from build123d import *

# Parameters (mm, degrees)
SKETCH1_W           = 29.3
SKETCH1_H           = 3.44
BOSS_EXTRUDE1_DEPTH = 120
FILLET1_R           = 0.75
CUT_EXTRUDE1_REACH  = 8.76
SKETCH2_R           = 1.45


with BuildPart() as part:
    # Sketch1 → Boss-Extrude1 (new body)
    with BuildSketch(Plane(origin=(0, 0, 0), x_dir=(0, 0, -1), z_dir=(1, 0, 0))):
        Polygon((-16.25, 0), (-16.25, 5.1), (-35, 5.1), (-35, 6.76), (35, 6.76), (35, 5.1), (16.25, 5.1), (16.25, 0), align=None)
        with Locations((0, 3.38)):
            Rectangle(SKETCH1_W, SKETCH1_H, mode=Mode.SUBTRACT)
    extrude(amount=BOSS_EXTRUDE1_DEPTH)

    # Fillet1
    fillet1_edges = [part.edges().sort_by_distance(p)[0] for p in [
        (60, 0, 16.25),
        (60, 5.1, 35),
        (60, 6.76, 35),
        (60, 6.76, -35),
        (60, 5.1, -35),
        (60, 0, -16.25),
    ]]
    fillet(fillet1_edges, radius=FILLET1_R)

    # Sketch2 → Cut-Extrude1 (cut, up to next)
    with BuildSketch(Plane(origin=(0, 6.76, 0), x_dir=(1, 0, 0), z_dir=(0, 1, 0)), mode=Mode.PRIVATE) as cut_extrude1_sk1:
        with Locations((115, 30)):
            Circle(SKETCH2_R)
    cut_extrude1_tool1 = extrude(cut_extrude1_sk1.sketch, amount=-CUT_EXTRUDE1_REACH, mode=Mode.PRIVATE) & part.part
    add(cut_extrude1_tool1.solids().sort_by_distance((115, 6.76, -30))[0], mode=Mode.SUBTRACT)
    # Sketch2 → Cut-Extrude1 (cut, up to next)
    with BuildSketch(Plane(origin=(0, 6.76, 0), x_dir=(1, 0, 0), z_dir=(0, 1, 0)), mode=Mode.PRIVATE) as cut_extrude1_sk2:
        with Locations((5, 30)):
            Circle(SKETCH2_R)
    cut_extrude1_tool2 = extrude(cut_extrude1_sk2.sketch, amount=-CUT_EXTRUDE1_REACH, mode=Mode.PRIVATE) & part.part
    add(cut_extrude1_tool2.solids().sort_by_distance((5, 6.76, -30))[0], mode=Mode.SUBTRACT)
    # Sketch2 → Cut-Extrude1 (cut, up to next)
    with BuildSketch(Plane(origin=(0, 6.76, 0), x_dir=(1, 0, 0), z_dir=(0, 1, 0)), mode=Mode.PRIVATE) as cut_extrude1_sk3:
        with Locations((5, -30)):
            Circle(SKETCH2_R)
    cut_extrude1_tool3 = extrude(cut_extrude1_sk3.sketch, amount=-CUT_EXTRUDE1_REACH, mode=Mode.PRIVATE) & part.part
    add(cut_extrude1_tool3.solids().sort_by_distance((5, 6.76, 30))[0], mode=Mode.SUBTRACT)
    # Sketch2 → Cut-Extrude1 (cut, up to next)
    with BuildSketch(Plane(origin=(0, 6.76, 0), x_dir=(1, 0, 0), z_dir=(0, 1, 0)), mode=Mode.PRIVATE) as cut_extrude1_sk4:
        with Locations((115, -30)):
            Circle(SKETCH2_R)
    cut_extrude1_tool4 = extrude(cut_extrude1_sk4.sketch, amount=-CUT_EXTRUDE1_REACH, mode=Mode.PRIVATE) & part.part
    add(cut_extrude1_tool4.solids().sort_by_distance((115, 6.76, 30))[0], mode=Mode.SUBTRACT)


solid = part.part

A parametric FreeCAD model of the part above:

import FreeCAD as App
import Part
import Sketcher
from FreeCAD import Vector


def edges_at(feature, points):
    """Names of the edges that pass closest to the given points."""
    edges = feature.Shape.Edges
    near = lambda p: min(range(len(edges)), key=lambda i: edges[i].distToShape(Part.Vertex(*p))[0])
    return sorted({f"Edge{near(p) + 1}" for p in points})

doc = App.newDocument("Part")
body = doc.addObject("PartDesign::Body", "Body")

# Sketch on YZ plane
sketch1 = doc.addObject("Sketcher::SketchObject", "Sketch")
body.addObject(sketch1)
sketch1.AttachmentSupport = (doc.YZ_Plane, [""])
sketch1.MapMode = "FlatFace"
sketch1.addGeometry(Part.LineSegment(Vector(5.1, 16.25, 0), Vector(0, 16.25, 0)), False)
sketch1.addGeometry(Part.LineSegment(Vector(0, 16.25, 0), Vector(0, -16.25, 0)), False)
sketch1.addGeometry(Part.LineSegment(Vector(0, -16.25, 0), Vector(5.1, -16.25, 0)), False)
sketch1.addGeometry(Part.LineSegment(Vector(5.1, -16.25, 0), Vector(5.1, -35, 0)), False)
sketch1.addGeometry(Part.LineSegment(Vector(5.1, -35, 0), Vector(6.76, -35, 0)), False)
sketch1.addGeometry(Part.LineSegment(Vector(6.76, -35, 0), Vector(6.76, 35, 0)), False)
sketch1.addGeometry(Part.LineSegment(Vector(6.76, 35, 0), Vector(5.1, 35, 0)), False)
sketch1.addGeometry(Part.LineSegment(Vector(5.1, 35, 0), Vector(5.1, 16.25, 0)), False)
sketch1.addGeometry(Part.LineSegment(Vector(1.66, 14.65, 0), Vector(5.1, 14.65, 0)), False)
sketch1.addGeometry(Part.LineSegment(Vector(5.1, 14.65, 0), Vector(5.1, -14.65, 0)), False)
sketch1.addGeometry(Part.LineSegment(Vector(5.1, -14.65, 0), Vector(1.66, -14.65, 0)), False)
sketch1.addGeometry(Part.LineSegment(Vector(1.66, -14.65, 0), Vector(1.66, 14.65, 0)), False)
sketch1.addConstraint(Sketcher.Constraint("Coincident", 0, 2, 1, 1))
sketch1.addConstraint(Sketcher.Constraint("Coincident", 1, 2, 2, 1))
sketch1.addConstraint(Sketcher.Constraint("Coincident", 2, 2, 3, 1))
sketch1.addConstraint(Sketcher.Constraint("Coincident", 3, 2, 4, 1))
sketch1.addConstraint(Sketcher.Constraint("Coincident", 4, 2, 5, 1))
sketch1.addConstraint(Sketcher.Constraint("Coincident", 5, 2, 6, 1))
sketch1.addConstraint(Sketcher.Constraint("Coincident", 6, 2, 7, 1))
sketch1.addConstraint(Sketcher.Constraint("Coincident", 7, 2, 0, 1))
sketch1.addConstraint(Sketcher.Constraint("Coincident", 8, 2, 9, 1))
sketch1.addConstraint(Sketcher.Constraint("Coincident", 9, 2, 10, 1))
sketch1.addConstraint(Sketcher.Constraint("Coincident", 10, 2, 11, 1))
sketch1.addConstraint(Sketcher.Constraint("Coincident", 11, 2, 8, 1))
sketch1.addConstraint(Sketcher.Constraint("Horizontal", 0))
sketch1.addConstraint(Sketcher.Constraint("Vertical", 1))
sketch1.addConstraint(Sketcher.Constraint("Horizontal", 2))
sketch1.addConstraint(Sketcher.Constraint("Vertical", 3))
sketch1.addConstraint(Sketcher.Constraint("Horizontal", 4))
sketch1.addConstraint(Sketcher.Constraint("Vertical", 5))
sketch1.addConstraint(Sketcher.Constraint("Horizontal", 6))
sketch1.addConstraint(Sketcher.Constraint("Vertical", 7))
sketch1.addConstraint(Sketcher.Constraint("Horizontal", 8))
sketch1.addConstraint(Sketcher.Constraint("Vertical", 9))
sketch1.addConstraint(Sketcher.Constraint("Horizontal", 10))
sketch1.addConstraint(Sketcher.Constraint("Vertical", 11))
sketch1.addConstraint(Sketcher.Constraint("Symmetric", 0, 2, 1, 2, -1, 1))
sketch1.addConstraint(Sketcher.Constraint("Symmetric", 3, 2, 6, 2, -1))
sketch1.addConstraint(Sketcher.Constraint("Vertical", 7, 2, 8, 2))
sketch1.addConstraint(Sketcher.Constraint("DistanceY", 5, 1, 5, 2, 70.0))
sketch1.addConstraint(Sketcher.Constraint("DistanceX", 0, 2, 0, 1, 5.1))
sketch1.addConstraint(Sketcher.Constraint("DistanceY", 1, 2, 1, 1, 32.5))
sketch1.addConstraint(Sketcher.Constraint("DistanceY", 9, 2, 9, 1, 29.3))
sketch1.addConstraint(Sketcher.Constraint("DistanceX", 4, 1, 4, 2, 1.66))
sketch1.addConstraint(Sketcher.Constraint("DistanceX", 8, 1, 8, 2, 3.44))
sketch1.addConstraint(Sketcher.Constraint("DistanceY", 8, 2, 7, 2, 1.6))
pad1 = doc.addObject("PartDesign::Pad", "Pad")
body.addObject(pad1)
pad1.Profile = sketch1
pad1.Length = 120
doc.recompute()

fillet = doc.addObject("PartDesign::Fillet", "Fillet")
body.addObject(fillet)
fillet.Base = (pad1, edges_at(pad1, [
    (60, 0, 16.25),
    (60, 5.1, 35),
    (60, 6.76, 35),
    (60, 6.76, -35),
    (60, 5.1, -35),
    (60, 0, -16.25),
]))
fillet.Radius = 0.75

# Sketch on XZ plane
sketch2 = doc.addObject("Sketcher::SketchObject", "Sketch001")
body.addObject(sketch2)
sketch2.AttachmentSupport = (doc.XZ_Plane, [""])
sketch2.MapMode = "FlatFace"
sketch2.AttachmentOffset = App.Placement(Vector(0, 0, -6.76), App.Rotation())
sketch2.addGeometry(Part.Circle(Vector(115, -30, 0), Vector(0, 0, 1), 1.45), False)
sketch2.addConstraint(Sketcher.Constraint("Diameter", 0, 2.9))
sketch2.addConstraint(Sketcher.Constraint("DistanceX", -1, 1, 0, 3, 115.0))
sketch2.addConstraint(Sketcher.Constraint("DistanceY", 0, 3, -1, 1, 30.0))
pocket1 = doc.addObject("PartDesign::Pocket", "Pocket")
body.addObject(pocket1)
pocket1.Profile = sketch2
pocket1.Type = "UpToFirst"
pocket1.Reversed = True

# Sketch on XZ plane
sketch3 = doc.addObject("Sketcher::SketchObject", "Sketch002")
body.addObject(sketch3)
sketch3.AttachmentSupport = (doc.XZ_Plane, [""])
sketch3.MapMode = "FlatFace"
sketch3.AttachmentOffset = App.Placement(Vector(0, 0, -6.76), App.Rotation())
sketch3.addGeometry(Part.Circle(Vector(5, -30, 0), Vector(0, 0, 1), 1.45), False)
sketch3.addConstraint(Sketcher.Constraint("Diameter", 0, 2.9))
sketch3.addConstraint(Sketcher.Constraint("DistanceX", -1, 1, 0, 3, 5.0))
sketch3.addConstraint(Sketcher.Constraint("DistanceY", 0, 3, -1, 1, 30.0))
pocket2 = doc.addObject("PartDesign::Pocket", "Pocket001")
body.addObject(pocket2)
pocket2.Profile = sketch3
pocket2.Type = "UpToFirst"
pocket2.Reversed = True

# Sketch on XZ plane
sketch4 = doc.addObject("Sketcher::SketchObject", "Sketch003")
body.addObject(sketch4)
sketch4.AttachmentSupport = (doc.XZ_Plane, [""])
sketch4.MapMode = "FlatFace"
sketch4.AttachmentOffset = App.Placement(Vector(0, 0, -6.76), App.Rotation())
sketch4.addGeometry(Part.Circle(Vector(5, 30, 0), Vector(0, 0, 1), 1.45), False)
sketch4.addConstraint(Sketcher.Constraint("Diameter", 0, 2.9))
sketch4.addConstraint(Sketcher.Constraint("DistanceX", -1, 1, 0, 3, 5.0))
sketch4.addConstraint(Sketcher.Constraint("DistanceY", -1, 1, 0, 3, 30.0))
pocket3 = doc.addObject("PartDesign::Pocket", "Pocket002")
body.addObject(pocket3)
pocket3.Profile = sketch4
pocket3.Type = "UpToFirst"
pocket3.Reversed = True

# Sketch on XZ plane
sketch5 = doc.addObject("Sketcher::SketchObject", "Sketch004")
body.addObject(sketch5)
sketch5.AttachmentSupport = (doc.XZ_Plane, [""])
sketch5.MapMode = "FlatFace"
sketch5.AttachmentOffset = App.Placement(Vector(0, 0, -6.76), App.Rotation())
sketch5.addGeometry(Part.Circle(Vector(115, 30, 0), Vector(0, 0, 1), 1.45), False)
sketch5.addConstraint(Sketcher.Constraint("Diameter", 0, 2.9))
sketch5.addConstraint(Sketcher.Constraint("DistanceX", -1, 1, 0, 3, 115.0))
sketch5.addConstraint(Sketcher.Constraint("DistanceY", -1, 1, 0, 3, 30.0))
pocket4 = doc.addObject("PartDesign::Pocket", "Pocket003")
body.addObject(pocket4)
pocket4.Profile = sketch5
pocket4.Type = "UpToFirst"
pocket4.Reversed = True

doc.recompute()
